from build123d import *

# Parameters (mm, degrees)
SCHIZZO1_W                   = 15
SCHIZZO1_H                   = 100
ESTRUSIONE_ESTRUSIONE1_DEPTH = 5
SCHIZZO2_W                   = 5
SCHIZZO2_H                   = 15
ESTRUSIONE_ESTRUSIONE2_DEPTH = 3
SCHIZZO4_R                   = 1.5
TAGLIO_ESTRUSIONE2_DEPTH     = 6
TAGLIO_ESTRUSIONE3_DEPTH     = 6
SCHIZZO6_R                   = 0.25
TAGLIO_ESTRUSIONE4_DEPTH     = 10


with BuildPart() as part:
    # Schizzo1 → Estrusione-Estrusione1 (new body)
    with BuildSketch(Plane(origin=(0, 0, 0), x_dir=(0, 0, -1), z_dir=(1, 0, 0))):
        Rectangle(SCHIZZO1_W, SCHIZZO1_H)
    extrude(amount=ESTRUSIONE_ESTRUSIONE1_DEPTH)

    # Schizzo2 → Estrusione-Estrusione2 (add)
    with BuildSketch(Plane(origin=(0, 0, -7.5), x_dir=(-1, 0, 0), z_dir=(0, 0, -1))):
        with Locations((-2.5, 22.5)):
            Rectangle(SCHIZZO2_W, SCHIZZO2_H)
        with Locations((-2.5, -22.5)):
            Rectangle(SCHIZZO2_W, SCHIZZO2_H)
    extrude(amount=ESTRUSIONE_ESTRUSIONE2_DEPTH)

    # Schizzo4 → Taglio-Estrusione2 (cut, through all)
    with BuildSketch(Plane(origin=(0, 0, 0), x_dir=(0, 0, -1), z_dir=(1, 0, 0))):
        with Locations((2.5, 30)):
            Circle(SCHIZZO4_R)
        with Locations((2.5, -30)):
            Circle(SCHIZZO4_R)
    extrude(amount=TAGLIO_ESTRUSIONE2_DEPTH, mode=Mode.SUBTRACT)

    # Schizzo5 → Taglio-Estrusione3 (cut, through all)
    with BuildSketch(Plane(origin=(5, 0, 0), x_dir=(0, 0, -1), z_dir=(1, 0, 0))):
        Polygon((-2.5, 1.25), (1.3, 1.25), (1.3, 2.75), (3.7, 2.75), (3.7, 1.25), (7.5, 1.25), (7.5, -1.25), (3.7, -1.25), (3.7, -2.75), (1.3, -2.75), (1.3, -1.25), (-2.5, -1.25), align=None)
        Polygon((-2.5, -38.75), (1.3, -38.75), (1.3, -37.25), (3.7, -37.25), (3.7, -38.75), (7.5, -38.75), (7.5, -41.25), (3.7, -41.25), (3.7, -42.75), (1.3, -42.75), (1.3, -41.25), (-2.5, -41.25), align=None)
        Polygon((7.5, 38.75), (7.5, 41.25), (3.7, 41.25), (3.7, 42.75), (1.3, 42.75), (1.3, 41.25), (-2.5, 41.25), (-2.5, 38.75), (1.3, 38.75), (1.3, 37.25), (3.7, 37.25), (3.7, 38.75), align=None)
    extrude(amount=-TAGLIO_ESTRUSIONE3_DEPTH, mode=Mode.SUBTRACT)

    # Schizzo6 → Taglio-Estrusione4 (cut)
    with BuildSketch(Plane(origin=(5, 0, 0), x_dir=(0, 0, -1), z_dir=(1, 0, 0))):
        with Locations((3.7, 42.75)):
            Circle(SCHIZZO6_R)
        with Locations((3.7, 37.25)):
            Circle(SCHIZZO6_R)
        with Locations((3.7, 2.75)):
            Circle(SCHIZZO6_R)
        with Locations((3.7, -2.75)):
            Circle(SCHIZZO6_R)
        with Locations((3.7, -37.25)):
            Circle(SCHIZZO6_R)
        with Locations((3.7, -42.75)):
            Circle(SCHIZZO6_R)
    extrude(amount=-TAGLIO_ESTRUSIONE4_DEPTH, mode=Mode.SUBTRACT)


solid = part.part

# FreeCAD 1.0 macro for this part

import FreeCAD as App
import Part
import Sketcher

V = App.Vector

doc = App.newDocument("Part")
body = doc.addObject("PartDesign::Body", "Body")

# Sketch on YZ plane
sketch1 = body.newObject("Sketcher::SketchObject", "Sketch")
sketch1.AttachmentSupport = (doc.getObject("YZ_Plane"), [""])
sketch1.MapMode = "FlatFace"
sketch1.addGeometry([
    Part.LineSegment(V(50, 8, 0), V(-50, 8, 0)),
    Part.LineSegment(V(-50, 8, 0), V(-50, -8, 0)),
    Part.LineSegment(V(-50, -8, 0), V(50, -8, 0)),
    Part.LineSegment(V(50, -8, 0), V(50, 8, 0)),
], False)
sketch1.addConstraint([
    Sketcher.Constraint("Coincident", 0, 2, 1, 1),
    Sketcher.Constraint("Coincident", 1, 2, 2, 1),
    Sketcher.Constraint("Coincident", 2, 2, 3, 1),
    Sketcher.Constraint("Coincident", 3, 2, 0, 1),
    Sketcher.Constraint("Horizontal", 0),
    Sketcher.Constraint("Vertical", 1),
    Sketcher.Constraint("Horizontal", 2),
    Sketcher.Constraint("Vertical", 3),
    Sketcher.Constraint("Symmetric", 0, 2, 2, 2, -1, 1),
    Sketcher.Constraint("DistanceX", 0, 2, 0, 1, 100.0),
    Sketcher.Constraint("DistanceY", 1, 2, 1, 1, 15.0),
])
pad1 = body.newObject("PartDesign::Pad", "Pad")
pad1.Profile = sketch1
pad1.Length = 5

# Sketch on XY plane
sketch2 = body.newObject("Sketcher::SketchObject", "Sketch001")
sketch2.AttachmentSupport = (doc.getObject("XY_Plane"), [""])
sketch2.MapMode = "FlatFace"
sketch2.AttachmentOffset = App.Placement(V(0, 0, -7.5), App.Rotation())
sketch2.addGeometry([
    Part.LineSegment(V(5, 30, 0), V(5, 15, 0)),  # 0
    Part.LineSegment(V(5, 15, 0), V(0, 15, 0)),  # 1
    Part.LineSegment(V(0, 15, 0), V(0, 30, 0)),  # 2
    Part.LineSegment(V(0, 30, 0), V(5, 30, 0)),  # 3
    Part.LineSegment(V(5, -15, 0), V(5, -30, 0)),  # 4
    Part.LineSegment(V(5, -30, 0), V(0, -30, 0)),  # 5
    Part.LineSegment(V(0, -30, 0), V(0, -15, 0)),  # 6
    Part.LineSegment(V(0, -15, 0), V(5, -15, 0)),  # 7
], False)
sketch2.addConstraint([
    Sketcher.Constraint("Coincident", 0, 2, 1, 1),
    Sketcher.Constraint("Coincident", 1, 2, 2, 1),
    Sketcher.Constraint("Coincident", 2, 2, 3, 1),
    Sketcher.Constraint("Coincident", 3, 2, 0, 1),
    Sketcher.Constraint("Coincident", 4, 2, 5, 1),
    Sketcher.Constraint("Coincident", 5, 2, 6, 1),
    Sketcher.Constraint("Coincident", 6, 2, 7, 1),
    Sketcher.Constraint("Coincident", 7, 2, 4, 1),
    Sketcher.Constraint("Vertical", 0),
    Sketcher.Constraint("Horizontal", 1),
    Sketcher.Constraint("Vertical", 2),
    Sketcher.Constraint("Horizontal", 3),
    Sketcher.Constraint("Vertical", 4),
    Sketcher.Constraint("Horizontal", 5),
    Sketcher.Constraint("Vertical", 6),
    Sketcher.Constraint("Horizontal", 7),
    Sketcher.Constraint("Symmetric", 2, 2, 5, 2, -1, 1),
    Sketcher.Constraint("Symmetric", 1, 2, 6, 2, -1),
    Sketcher.Constraint("Vertical", 3, 2, 4, 2),
    Sketcher.Constraint("DistanceX", 1, 2, 1, 1, 5.0),
    Sketcher.Constraint("DistanceY", 0, 2, 0, 1, 15.0),
    Sketcher.Constraint("DistanceY", -1, 1, 0, 2, 15.0),
])
pad2 = body.newObject("PartDesign::Pad", "Pad001")
pad2.Profile = sketch2
pad2.Length = 3
pad2.Reversed = True

# Sketch on YZ plane
sketch3 = body.newObject("Sketcher::SketchObject", "Sketch002")
sketch3.AttachmentSupport = (doc.getObject("YZ_Plane"), [""])
sketch3.MapMode = "FlatFace"
sketch3.addGeometry([
    Part.Circle(V(30, -2.5, 0), V(0, 0, 1), 1.5),
    Part.Circle(V(-30, -2.5, 0), V(0, 0, 1), 1.5),
], False)
sketch3.addConstraint([
    Sketcher.Constraint("Equal", 0, 1),
    Sketcher.Constraint("Symmetric", 0, 3, 1, 3, -2),
    Sketcher.Constraint("Diameter", 0, 3.0),
    Sketcher.Constraint("DistanceX", -1, 1, 0, 3, 30.0),
    Sketcher.Constraint("DistanceY", 0, 3, -1, 1, 2.5),
])
pocket1 = body.newObject("PartDesign::Pocket", "Pocket")
pocket1.Profile = sketch3
pocket1.Type = "ThroughAll"
pocket1.Reversed = True

# Sketch on YZ plane
sketch4 = body.newObject("Sketcher::SketchObject", "Sketch003")
sketch4.AttachmentSupport = (doc.getObject("YZ_Plane"), [""])
sketch4.MapMode = "FlatFace"
sketch4.AttachmentOffset = App.Placement(V(0, 0, 5), App.Rotation())
sketch4.addGeometry([
    Part.LineSegment(V(1.2, -1.3, 0), V(1.2, 2.5, 0)),  # 0
    Part.LineSegment(V(1.2, 2.5, 0), V(-1.2, 2.5, 0)),  # 1
    Part.LineSegment(V(-1.2, 2.5, 0), V(-1.2, -1.3, 0)),  # 2
    Part.LineSegment(V(-1.2, -1.3, 0), V(-2.8, -1.3, 0)),  # 3
    Part.LineSegment(V(-2.8, -1.3, 0), V(-2.8, -3.7, 0)),  # 4
    Part.LineSegment(V(-2.8, -3.7, 0), V(-1.2, -3.7, 0)),  # 5
    Part.LineSegment(V(-1.2, -3.7, 0), V(-1.2, -7.5, 0)),  # 6
    Part.LineSegment(V(-1.2, -7.5, 0), V(1.2, -7.5, 0)),  # 7
    Part.LineSegment(V(1.2, -7.5, 0), V(1.2, -3.7, 0)),  # 8
    Part.LineSegment(V(1.2, -3.7, 0), V(2.8, -3.7, 0)),  # 9
    Part.LineSegment(V(2.8, -3.7, 0), V(2.8, -1.3, 0)),  # 10
    Part.LineSegment(V(2.8, -1.3, 0), V(1.2, -1.3, 0)),  # 11
    Part.LineSegment(V(-38.8, -1.3, 0), V(-38.8, 2.5, 0)),  # 12
    Part.LineSegment(V(-38.8, 2.5, 0), V(-41.2, 2.5, 0)),  # 13
    Part.LineSegment(V(-41.2, 2.5, 0), V(-41.2, -1.3, 0)),  # 14
    Part.LineSegment(V(-41.2, -1.3, 0), V(-42.8, -1.3, 0)),  # 15
    Part.LineSegment(V(-42.8, -1.3, 0), V(-42.8, -3.7, 0)),  # 16
    Part.LineSegment(V(-42.8, -3.7, 0), V(-41.2, -3.7, 0)),  # 17
    Part.LineSegment(V(-41.2, -3.7, 0), V(-41.2, -7.5, 0)),  # 18
    Part.LineSegment(V(-41.2, -7.5, 0), V(-38.8, -7.5, 0)),  # 19
    Part.LineSegment(V(-38.8, -7.5, 0), V(-38.8, -3.7, 0)),  # 20
    Part.LineSegment(V(-38.8, -3.7, 0), V(-37.2, -3.7, 0)),  # 21
    Part.LineSegment(V(-37.2, -3.7, 0), V(-37.2, -1.3, 0)),  # 22
    Part.LineSegment(V(-37.2, -1.3, 0), V(-38.8, -1.3, 0)),  # 23
    Part.LineSegment(V(38.8, -7.5, 0), V(41.2, -7.5, 0)),  # 24
    Part.LineSegment(V(41.2, -7.5, 0), V(41.2, -3.7, 0)),  # 25
    Part.LineSegment(V(41.2, -3.7, 0), V(42.8, -3.7, 0)),  # 26
    Part.LineSegment(V(42.8, -3.7, 0), V(42.8, -1.3, 0)),  # 27
    Part.LineSegment(V(42.8, -1.3, 0), V(41.2, -1.3, 0)),  # 28
    Part.LineSegment(V(41.2, -1.3, 0), V(41.2, 2.5, 0)),  # 29
    Part.LineSegment(V(41.2, 2.5, 0), V(38.8, 2.5, 0)),  # 30
    Part.LineSegment(V(38.8, 2.5, 0), V(38.8, -1.3, 0)),  # 31
    Part.LineSegment(V(38.8, -1.3, 0), V(37.2, -1.3, 0)),  # 32
    Part.LineSegment(V(37.2, -1.3, 0), V(37.2, -3.7, 0)),  # 33
    Part.LineSegment(V(37.2, -3.7, 0), V(38.8, -3.7, 0)),  # 34
    Part.LineSegment(V(38.8, -3.7, 0), V(38.8, -7.5, 0)),  # 35
], False)
sketch4.addConstraint([
    Sketcher.Constraint("Coincident", 0, 2, 1, 1),
    Sketcher.Constraint("Coincident", 1, 2, 2, 1),
    Sketcher.Constraint("Coincident", 2, 2, 3, 1),
    Sketcher.Constraint("Coincident", 3, 2, 4, 1),
    Sketcher.Constraint("Coincident", 4, 2, 5, 1),
    Sketcher.Constraint("Coincident", 5, 2, 6, 1),
    Sketcher.Constraint("Coincident", 6, 2, 7, 1),
    Sketcher.Constraint("Coincident", 7, 2, 8, 1),
    Sketcher.Constraint("Coincident", 8, 2, 9, 1),
    Sketcher.Constraint("Coincident", 9, 2, 10, 1),
    Sketcher.Constraint("Coincident", 10, 2, 11, 1),
    Sketcher.Constraint("Coincident", 11, 2, 0, 1),
    Sketcher.Constraint("Coincident", 12, 2, 13, 1),
    Sketcher.Constraint("Coincident", 13, 2, 14, 1),
    Sketcher.Constraint("Coincident", 14, 2, 15, 1),
    Sketcher.Constraint("Coincident", 15, 2, 16, 1),
    Sketcher.Constraint("Coincident", 16, 2, 17, 1),
    Sketcher.Constraint("Coincident", 17, 2, 18, 1),
    Sketcher.Constraint("Coincident", 18, 2, 19, 1),
    Sketcher.Constraint("Coincident", 19, 2, 20, 1),
    Sketcher.Constraint("Coincident", 20, 2, 21, 1),
    Sketcher.Constraint("Coincident", 21, 2, 22, 1),
    Sketcher.Constraint("Coincident", 22, 2, 23, 1),
    Sketcher.Constraint("Coincident", 23, 2, 12, 1),
    Sketcher.Constraint("Coincident", 24, 2, 25, 1),
    Sketcher.Constraint("Coincident", 25, 2, 26, 1),
    Sketcher.Constraint("Coincident", 26, 2, 27, 1),
    Sketcher.Constraint("Coincident", 27, 2, 28, 1),
    Sketcher.Constraint("Coincident", 28, 2, 29, 1),
    Sketcher.Constraint("Coincident", 29, 2, 30, 1),
    Sketcher.Constraint("Coincident", 30, 2, 31, 1),
    Sketcher.Constraint("Coincident", 31, 2, 32, 1),
    Sketcher.Constraint("Coincident", 32, 2, 33, 1),
    Sketcher.Constraint("Coincident", 33, 2, 34, 1),
    Sketcher.Constraint("Coincident", 34, 2, 35, 1),
    Sketcher.Constraint("Coincident", 35, 2, 24, 1),
    Sketcher.Constraint("Vertical", 0),
    Sketcher.Constraint("Horizontal", 1),
    Sketcher.Constraint("Vertical", 2),
    Sketcher.Constraint("Horizontal", 3),
    Sketcher.Constraint("Vertical", 4),
    Sketcher.Constraint("Horizontal", 5),
    Sketcher.Constraint("Vertical", 6),
    Sketcher.Constraint("Horizontal", 7),
    Sketcher.Constraint("Vertical", 8),
    Sketcher.Constraint("Horizontal", 9),
    Sketcher.Constraint("Vertical", 10),
    Sketcher.Constraint("Horizontal", 11),
    Sketcher.Constraint("Vertical", 12),
    Sketcher.Constraint("Horizontal", 13),
    Sketcher.Constraint("Vertical", 14),
    Sketcher.Constraint("Horizontal", 15),
    Sketcher.Constraint("Vertical", 16),
    Sketcher.Constraint("Horizontal", 17),
    Sketcher.Constraint("Vertical", 18),
    Sketcher.Constraint("Horizontal", 19),
    Sketcher.Constraint("Vertical", 20),
    Sketcher.Constraint("Horizontal", 21),
    Sketcher.Constraint("Vertical", 22),
    Sketcher.Constraint("Horizontal", 23),
    Sketcher.Constraint("Horizontal", 24),
    Sketcher.Constraint("Vertical", 25),
    Sketcher.Constraint("Horizontal", 26),
    Sketcher.Constraint("Vertical", 27),
    Sketcher.Constraint("Horizontal", 28),
    Sketcher.Constraint("Vertical", 29),
    Sketcher.Constraint("Horizontal", 30),
    Sketcher.Constraint("Vertical", 31),
    Sketcher.Constraint("Horizontal", 32),
    Sketcher.Constraint("Vertical", 33),
    Sketcher.Constraint("Horizontal", 34),
    Sketcher.Constraint("Vertical", 35),
    Sketcher.Constraint("Symmetric", 5, 2, 8, 2, -2),
    Sketcher.Constraint("Symmetric", 3, 2, 10, 2, -2),
    Sketcher.Constraint("Symmetric", 18, 2, 24, 2, -2),
    Sketcher.Constraint("Symmetric", 16, 2, 26, 2, -2),
    Sketcher.Constraint("Symmetric", 14, 2, 28, 2, -2),
    Sketcher.Constraint("Symmetric", 12, 2, 30, 2, -2),
    Sketcher.Constraint("Symmetric", 22, 2, 32, 2, -2),
    Sketcher.Constraint("Symmetric", 20, 2, 34, 2, -2),
    Sketcher.Constraint("Horizontal", 1, 2, 12, 2),
    Sketcher.Constraint("Horizontal", 11, 2, 14, 2),
    Sketcher.Constraint("Horizontal", 9, 2, 16, 2),
    Sketcher.Constraint("Horizontal", 7, 2, 18, 2),
    Sketcher.Constraint("Horizontal", 17, 2, 20, 2),
    Sketcher.Constraint("Horizontal", 15, 2, 22, 2),
    Sketcher.Constraint("Vertical", 2, 2, 5, 2),
    Sketcher.Constraint("Vertical", 0, 2, 7, 2),
    Sketcher.Constraint("Vertical", 14, 2, 17, 2),
    Sketcher.Constraint("Vertical", 12, 2, 19, 2),
    Sketcher.Constraint("Equal", 7, 13),
    Sketcher.Constraint("Equal", 11, 15),
    Sketcher.Constraint("Equal", 17, 21),
    Sketcher.Constraint("Equal", 2, 6),
    Sketcher.Constraint("DistanceX", 1, 2, 1, 1, 2.5),
    Sketcher.Constraint("DistanceX", 3, 2, 3, 1, 1.5),
    Sketcher.Constraint("DistanceY", 0, 1, 0, 2, 3.8),
    Sketcher.Constraint("DistanceY", 4, 2, 4, 1, 2.4),
    Sketcher.Constraint("DistanceX", 12, 2, 3, 2, 36.0),
    Sketcher.Constraint("DistanceY", -1, 1, 0, 2, 2.5),
])
pocket2 = body.newObject("PartDesign::Pocket", "Pocket001")
pocket2.Profile = sketch4
pocket2.Type = "ThroughAll"

# Sketch on YZ plane
sketch5 = body.newObject("Sketcher::SketchObject", "Sketch004")
sketch5.AttachmentSupport = (doc.getObject("YZ_Plane"), [""])
sketch5.MapMode = "FlatFace"
sketch5.AttachmentOffset = App.Placement(V(0, 0, 5), App.Rotation())
sketch5.addGeometry([
    Part.Circle(V(42.75, -3.7, 0), V(0, 0, 1), 0.25),  # 0
    Part.Circle(V(37.25, -3.7, 0), V(0, 0, 1), 0.25),  # 1
    Part.Circle(V(2.75, -3.7, 0), V(0, 0, 1), 0.25),  # 2
    Part.Circle(V(-2.75, -3.7, 0), V(0, 0, 1), 0.25),  # 3
    Part.Circle(V(-37.25, -3.7, 0), V(0, 0, 1), 0.25),  # 4
    Part.Circle(V(-42.75, -3.7, 0), V(0, 0, 1), 0.25),  # 5
], False)
sketch5.addConstraint([
    Sketcher.Constraint("Equal", 0, 1),
    Sketcher.Constraint("Equal", 1, 2),
    Sketcher.Constraint("Equal", 2, 3),
    Sketcher.Constraint("Equal", 3, 4),
    Sketcher.Constraint("Equal", 4, 5),
    Sketcher.Constraint("Symmetric", 2, 3, 3, 3, -2),
    Sketcher.Constraint("Symmetric", 1, 3, 4, 3, -2),
    Sketcher.Constraint("Symmetric", 0, 3, 5, 3, -2),
    Sketcher.Constraint("Horizontal", 0, 3, 1, 3),
    Sketcher.Constraint("Horizontal", 1, 3, 2, 3),
    Sketcher.Constraint("Diameter", 0, 0.5),
    Sketcher.Constraint("DistanceX", 2, 3, 0, 3, 40.0),
    Sketcher.Constraint("DistanceX", 3, 3, 1, 3, 40.0),
    Sketcher.Constraint("DistanceY", 0, 3, -1, 1, 3.7),
    Sketcher.Constraint("DistanceX", 1, 3, 0, 3, 5.5),
])
pocket3 = body.newObject("PartDesign::Pocket", "Pocket002")
pocket3.Profile = sketch5
pocket3.Length = 10

doc.recompute()
